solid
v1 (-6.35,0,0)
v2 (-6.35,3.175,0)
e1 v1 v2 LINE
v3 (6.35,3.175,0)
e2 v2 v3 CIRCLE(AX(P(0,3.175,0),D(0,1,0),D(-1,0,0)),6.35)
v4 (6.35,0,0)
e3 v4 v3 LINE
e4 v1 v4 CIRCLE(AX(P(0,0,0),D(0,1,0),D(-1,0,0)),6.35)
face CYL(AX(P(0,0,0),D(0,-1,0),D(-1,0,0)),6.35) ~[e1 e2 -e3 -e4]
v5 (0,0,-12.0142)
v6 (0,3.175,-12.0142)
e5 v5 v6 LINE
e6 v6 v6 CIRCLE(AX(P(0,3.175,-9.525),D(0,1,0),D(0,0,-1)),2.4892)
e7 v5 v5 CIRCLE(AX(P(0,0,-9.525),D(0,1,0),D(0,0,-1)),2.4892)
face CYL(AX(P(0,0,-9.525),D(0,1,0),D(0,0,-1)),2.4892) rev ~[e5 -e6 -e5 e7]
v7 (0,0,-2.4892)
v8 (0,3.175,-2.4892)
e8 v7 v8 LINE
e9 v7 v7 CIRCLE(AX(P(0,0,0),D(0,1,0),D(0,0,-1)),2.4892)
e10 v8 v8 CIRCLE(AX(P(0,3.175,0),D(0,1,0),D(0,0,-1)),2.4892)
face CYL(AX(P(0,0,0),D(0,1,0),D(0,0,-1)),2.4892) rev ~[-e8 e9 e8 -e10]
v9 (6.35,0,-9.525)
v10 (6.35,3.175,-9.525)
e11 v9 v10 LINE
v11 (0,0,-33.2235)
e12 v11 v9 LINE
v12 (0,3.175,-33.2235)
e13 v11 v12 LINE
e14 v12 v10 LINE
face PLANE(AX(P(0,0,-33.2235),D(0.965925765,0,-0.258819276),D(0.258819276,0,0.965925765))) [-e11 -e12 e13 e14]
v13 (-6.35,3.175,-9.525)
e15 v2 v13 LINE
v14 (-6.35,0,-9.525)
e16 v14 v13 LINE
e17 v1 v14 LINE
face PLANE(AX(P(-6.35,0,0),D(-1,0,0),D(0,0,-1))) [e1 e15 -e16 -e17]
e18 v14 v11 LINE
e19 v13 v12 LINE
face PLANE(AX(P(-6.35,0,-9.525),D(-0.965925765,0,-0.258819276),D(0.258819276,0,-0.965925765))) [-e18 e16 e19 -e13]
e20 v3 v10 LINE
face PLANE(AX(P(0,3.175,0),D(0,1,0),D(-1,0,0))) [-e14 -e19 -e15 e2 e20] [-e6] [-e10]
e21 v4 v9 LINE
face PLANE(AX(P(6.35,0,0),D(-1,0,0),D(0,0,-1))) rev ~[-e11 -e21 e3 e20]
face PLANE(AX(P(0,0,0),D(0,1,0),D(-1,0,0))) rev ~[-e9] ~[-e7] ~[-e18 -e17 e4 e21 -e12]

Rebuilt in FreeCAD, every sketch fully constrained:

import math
import FreeCAD as App
import Part
import Sketcher
Q = App.Units.Quantity

doc = App.newDocument("Part")
body = doc.addObject("PartDesign::Body", "Body")

# Sketch on XZ plane
sketch1 = body.newObject("Sketcher::SketchObject", "Sketch")
sketch1.AttachmentSupport = (doc.getObject("XZ_Plane"), [""])
sketch1.MapMode = "FlatFace"
sketch1.addGeometry(Part.LineSegment(App.Vector(-6.35, -9.525, 0), App.Vector(-6.35, 0, 0)), False)
sketch1.addGeometry(Part.ArcOfCircle(Part.Circle(App.Vector(0, 0, 0), App.Vector(0, 0, 1), 6.35), math.radians(0), math.radians(180)), False)
sketch1.addGeometry(Part.LineSegment(App.Vector(6.35, 0, 0), App.Vector(6.35, -9.525, 0)), False)
sketch1.addGeometry(Part.LineSegment(App.Vector(6.35, -9.525, 0), App.Vector(0, -33.2235, 0)), False)
sketch1.addGeometry(Part.LineSegment(App.Vector(0, -33.2235, 0), App.Vector(-6.35, -9.525, 0)), False)
sketch1.addConstraint(Sketcher.Constraint("Tangent", 0, 2, 1, 2))
sketch1.addConstraint(Sketcher.Constraint("Tangent", 1, 1, 2, 1))
sketch1.addConstraint(Sketcher.Constraint("Coincident", 2, 2, 3, 1))
sketch1.addConstraint(Sketcher.Constraint("Coincident", 3, 2, 4, 1))
sketch1.addConstraint(Sketcher.Constraint("Coincident", 4, 2, 0, 1))
sketch1.addConstraint(Sketcher.Constraint("Vertical", 0))
sketch1.addConstraint(Sketcher.Constraint("Vertical", 2))
sketch1.addConstraint(Sketcher.Constraint("Coincident", 1, 3, -1, 1))
sketch1.addConstraint(Sketcher.Constraint("PointOnObject", 3, 2, -2))
sketch1.addConstraint(Sketcher.Constraint("Horizontal", 2, 2, 4, 2))
sketch1.addConstraint(Sketcher.Constraint("Radius", 1, Q("0.25 in")))
sketch1.addConstraint(Sketcher.Constraint("DistanceY", 0, 1, 0, 2, Q("0.375 in")))
sketch1.addConstraint(Sketcher.Constraint("Angle", 3, Q("-105 deg")))
pad1 = body.newObject("PartDesign::Pad", "Pad")
pad1.Profile = sketch1
pad1.Length = Q("0.125 in")
pad1.Reversed = True

# Sketch on XZ plane
sketch2 = body.newObject("Sketcher::SketchObject", "Sketch001")
sketch2.AttachmentSupport = (doc.getObject("XZ_Plane"), [""])
sketch2.MapMode = "FlatFace"
sketch2.addGeometry(Part.Circle(App.Vector(0, 0, 0), App.Vector(0, 0, 1), 2.4892), False)
sketch2.addGeometry(Part.Circle(App.Vector(0, -9.525, 0), App.Vector(0, 0, 1), 2.4892), False)
sketch2.addConstraint(Sketcher.Constraint("Coincident", 0, 3, -1, 1))
sketch2.addConstraint(Sketcher.Constraint("Equal", 0, 1))
sketch2.addConstraint(Sketcher.Constraint("PointOnObject", 1, 3, -2))
sketch2.addConstraint(Sketcher.Constraint("Diameter", 0, Q("0.196 in")))
sketch2.addConstraint(Sketcher.Constraint("DistanceY", 1, 3, -1, 1, Q("0.375 in")))
doc.recompute()
hole = body.newObject("PartDesign::Hole", "Hole")
hole.Profile = sketch2
hole.ThreadType = "None"
hole.Diameter = Q("0.196 in")
hole.DepthType = "ThroughAll"

doc.recompute()
